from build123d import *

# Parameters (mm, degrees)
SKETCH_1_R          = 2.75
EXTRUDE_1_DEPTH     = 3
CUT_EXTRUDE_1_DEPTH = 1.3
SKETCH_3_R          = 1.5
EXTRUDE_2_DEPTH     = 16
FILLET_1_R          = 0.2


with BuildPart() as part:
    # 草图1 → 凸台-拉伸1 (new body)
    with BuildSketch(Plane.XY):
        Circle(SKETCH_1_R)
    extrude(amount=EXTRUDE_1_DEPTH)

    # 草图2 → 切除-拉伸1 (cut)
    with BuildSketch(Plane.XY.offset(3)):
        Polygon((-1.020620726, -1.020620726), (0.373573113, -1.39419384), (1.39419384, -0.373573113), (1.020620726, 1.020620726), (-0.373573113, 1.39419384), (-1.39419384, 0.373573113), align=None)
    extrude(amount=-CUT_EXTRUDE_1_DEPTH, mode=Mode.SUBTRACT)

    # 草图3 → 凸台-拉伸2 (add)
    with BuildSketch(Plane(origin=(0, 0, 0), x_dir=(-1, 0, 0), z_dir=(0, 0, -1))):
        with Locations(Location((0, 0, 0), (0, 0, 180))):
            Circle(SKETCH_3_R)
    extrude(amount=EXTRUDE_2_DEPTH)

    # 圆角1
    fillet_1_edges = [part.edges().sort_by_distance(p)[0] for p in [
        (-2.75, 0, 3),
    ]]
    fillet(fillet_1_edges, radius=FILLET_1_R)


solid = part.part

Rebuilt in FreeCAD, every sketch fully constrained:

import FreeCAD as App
import Part
import Sketcher
Q = App.Units.Quantity


def edges_at(feature, points):
    """Names of the edges that pass closest to the given points."""
    edges = feature.Shape.Edges
    near = lambda p: min(range(len(edges)), key=lambda i: edges[i].distToShape(Part.Vertex(*p))[0])
    return sorted({f"Edge{near(p) + 1}" for p in points})

doc = App.newDocument("Part")
body = doc.addObject("PartDesign::Body", "Body")

sketch1 = body.newObject("Sketcher::SketchObject", "Sketch")
sketch1.AttachmentSupport = (doc.getObject("XY_Plane"), [""])
sketch1.MapMode = "FlatFace"
sketch1.addGeometry(Part.Circle(App.Vector(0, 0, 0), App.Vector(0, 0, 1), 2.8), False)
sketch1.addConstraint([
    Sketcher.Constraint("Coincident", 0, 3, -1, 1),
    Sketcher.Constraint("Diameter", 0, Q("5.5 mm")),
])
pad1 = body.newObject("PartDesign::Pad", "Pad")
pad1.Profile = sketch1
pad1.Length = 3

sketch2 = body.newObject("Sketcher::SketchObject", "Sketch001")
sketch2.AttachmentSupport = (doc.getObject("XY_Plane"), [""])
sketch2.MapMode = "FlatFace"
sketch2.AttachmentOffset = App.Placement(App.Vector(0, 0, 3), App.Rotation())
sketch2.addGeometry([
    Part.LineSegment(App.Vector(-1, -1, 0), App.Vector(0.4, -1.4, 0)),
    Part.LineSegment(App.Vector(0.4, -1.4, 0), App.Vector(1.4, -0.4, 0)),
    Part.LineSegment(App.Vector(1.4, -0.4, 0), App.Vector(1, 1, 0)),
    Part.LineSegment(App.Vector(1, 1, 0), App.Vector(-0.4, 1.4, 0)),
    Part.LineSegment(App.Vector(-0.4, 1.4, 0), App.Vector(-1.4, 0.4, 0)),
    Part.LineSegment(App.Vector(-1.4, 0.4, 0), App.Vector(-1, -1, 0)),
], False)
sketch2.addConstraint([
    Sketcher.Constraint("Coincident", 0, 2, 1, 1),
    Sketcher.Constraint("Coincident", 1, 2, 2, 1),
    Sketcher.Constraint("Coincident", 2, 2, 3, 1),
    Sketcher.Constraint("Coincident", 3, 2, 4, 1),
    Sketcher.Constraint("Coincident", 4, 2, 5, 1),
    Sketcher.Constraint("Coincident", 5, 2, 0, 1),
    Sketcher.Constraint("Symmetric", 0, 2, 3, 2, -1, 1),
    Sketcher.Constraint("Symmetric", 1, 2, 4, 2, -1, 1),
    Sketcher.Constraint("Symmetric", 2, 2, 5, 2, -1, 1),
    Sketcher.Constraint("Equal", 0, 1),
    Sketcher.Constraint("Equal", 1, 2),
    Sketcher.Constraint("Angle", 0, Q("-15 deg")),
    Sketcher.Constraint("Angle", 1, Q("45 deg")),
    Sketcher.Constraint("Angle", 2, Q("105 deg")),
    Sketcher.Constraint("DistanceX", -1, 1, 2, 2, Q("1.020621 mm")),
])
pocket1 = body.newObject("PartDesign::Pocket", "Pocket")
pocket1.Profile = sketch2
pocket1.Length = 1.3

sketch3 = body.newObject("Sketcher::SketchObject", "Sketch002")
sketch3.AttachmentSupport = (doc.getObject("XY_Plane"), [""])
sketch3.MapMode = "FlatFace"
sketch3.addGeometry(Part.Circle(App.Vector(0, 0, 0), App.Vector(0, 0, 1), 1.5), False)
sketch3.addConstraint([
    Sketcher.Constraint("Coincident", 0, 3, -1, 1),
    Sketcher.Constraint("Diameter", 0, Q("3 mm")),
])
pad2 = body.newObject("PartDesign::Pad", "Pad001")
pad2.Profile = sketch3
pad2.Length = 16
pad2.Reversed = True
doc.recompute()

fillet = body.newObject("PartDesign::Fillet", "Fillet")
fillet.Base = (pad2, edges_at(pad2, [(-2.75, 0, 3)]))
fillet.Radius = 0.2

doc.recompute()
